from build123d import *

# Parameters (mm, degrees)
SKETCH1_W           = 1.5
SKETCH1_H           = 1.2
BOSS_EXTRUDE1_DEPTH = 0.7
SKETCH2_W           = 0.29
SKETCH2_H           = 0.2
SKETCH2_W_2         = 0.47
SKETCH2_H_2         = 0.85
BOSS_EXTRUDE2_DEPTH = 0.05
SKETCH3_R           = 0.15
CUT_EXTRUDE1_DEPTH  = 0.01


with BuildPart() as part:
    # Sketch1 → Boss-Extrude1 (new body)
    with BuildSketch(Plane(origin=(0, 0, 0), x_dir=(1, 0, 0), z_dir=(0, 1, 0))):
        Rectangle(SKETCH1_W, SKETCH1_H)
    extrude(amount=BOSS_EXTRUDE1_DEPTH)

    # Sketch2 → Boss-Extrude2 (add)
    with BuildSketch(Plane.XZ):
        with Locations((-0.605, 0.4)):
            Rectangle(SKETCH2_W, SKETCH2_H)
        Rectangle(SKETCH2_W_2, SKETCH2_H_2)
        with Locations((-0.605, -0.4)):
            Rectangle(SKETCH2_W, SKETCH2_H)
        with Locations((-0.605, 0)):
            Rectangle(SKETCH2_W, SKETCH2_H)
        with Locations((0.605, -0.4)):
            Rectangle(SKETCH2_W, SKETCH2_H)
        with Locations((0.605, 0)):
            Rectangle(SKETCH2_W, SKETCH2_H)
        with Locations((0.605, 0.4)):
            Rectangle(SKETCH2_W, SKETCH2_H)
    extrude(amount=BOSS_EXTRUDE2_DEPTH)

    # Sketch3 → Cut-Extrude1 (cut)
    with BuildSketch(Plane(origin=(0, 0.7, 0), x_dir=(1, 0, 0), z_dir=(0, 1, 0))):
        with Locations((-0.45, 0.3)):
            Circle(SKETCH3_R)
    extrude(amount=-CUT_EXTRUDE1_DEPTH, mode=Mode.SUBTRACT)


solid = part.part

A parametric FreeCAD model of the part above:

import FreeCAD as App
import Part
import Sketcher

V = App.Vector

doc = App.newDocument("Part")
body = doc.addObject("PartDesign::Body", "Body")

# Sketch on XZ plane
sketch1 = doc.addObject("Sketcher::SketchObject", "Sketch")
body.addObject(sketch1)
sketch1.AttachmentSupport = (doc.XZ_Plane, [""])
sketch1.MapMode = "FlatFace"
sketch1.addGeometry(Part.LineSegment(V(-0.75, -0.6, 0), V(-0.75, 0.6, 0)), False)
sketch1.addGeometry(Part.LineSegment(V(-0.75, 0.6, 0), V(0.75, 0.6, 0)), False)
sketch1.addGeometry(Part.LineSegment(V(0.75, 0.6, 0), V(0.75, -0.6, 0)), False)
sketch1.addGeometry(Part.LineSegment(V(0.75, -0.6, 0), V(-0.75, -0.6, 0)), False)
sketch1.addConstraint(Sketcher.Constraint("Coincident", 0, 2, 1, 1))
sketch1.addConstraint(Sketcher.Constraint("Coincident", 1, 2, 2, 1))
sketch1.addConstraint(Sketcher.Constraint("Coincident", 2, 2, 3, 1))
sketch1.addConstraint(Sketcher.Constraint("Coincident", 3, 2, 0, 1))
sketch1.addConstraint(Sketcher.Constraint("Vertical", 0))
sketch1.addConstraint(Sketcher.Constraint("Horizontal", 1))
sketch1.addConstraint(Sketcher.Constraint("Vertical", 2))
sketch1.addConstraint(Sketcher.Constraint("Horizontal", 3))
sketch1.addConstraint(Sketcher.Constraint("Symmetric", 0, 2, 2, 2, -1, 1))
sketch1.addConstraint(Sketcher.Constraint("DistanceX", 1, 1, 1, 2, 1.5))
sketch1.addConstraint(Sketcher.Constraint("DistanceY", 0, 1, 0, 2, 1.2))
pad1 = doc.addObject("PartDesign::Pad", "Pad")
body.addObject(pad1)
pad1.Profile = sketch1
pad1.Length = 0.7
pad1.Reversed = True

# Sketch on XZ plane
sketch2 = doc.addObject("Sketcher::SketchObject", "Sketch001")
body.addObject(sketch2)
sketch2.AttachmentSupport = (doc.XZ_Plane, [""])
sketch2.MapMode = "FlatFace"
sketch2.addGeometry(Part.LineSegment(V(-0.75, 0.5, 0), V(-0.75, 0.3, 0)), False)
sketch2.addGeometry(Part.LineSegment(V(-0.75, 0.3, 0), V(-0.46, 0.3, 0)), False)
sketch2.addGeometry(Part.LineSegment(V(-0.46, 0.3, 0), V(-0.46, 0.5, 0)), False)
sketch2.addGeometry(Part.LineSegment(V(-0.46, 0.5, 0), V(-0.75, 0.5, 0)), False)
sketch2.addGeometry(Part.LineSegment(V(-0.235, 0.425, 0), V(-0.235, -0.425, 0)), False)
sketch2.addGeometry(Part.LineSegment(V(-0.235, -0.425, 0), V(0.235, -0.425, 0)), False)
sketch2.addGeometry(Part.LineSegment(V(0.235, -0.425, 0), V(0.235, 0.425, 0)), False)
sketch2.addGeometry(Part.LineSegment(V(0.235, 0.425, 0), V(-0.235, 0.425, 0)), False)
sketch2.addGeometry(Part.LineSegment(V(-0.75, -0.3, 0), V(-0.75, -0.5, 0)), False)
sketch2.addGeometry(Part.LineSegment(V(-0.75, -0.5, 0), V(-0.46, -0.5, 0)), False)
sketch2.addGeometry(Part.LineSegment(V(-0.46, -0.5, 0), V(-0.46, -0.3, 0)), False)
sketch2.addGeometry(Part.LineSegment(V(-0.46, -0.3, 0), V(-0.75, -0.3, 0)), False)
sketch2.addGeometry(Part.LineSegment(V(-0.75, 0.1, 0), V(-0.75, -0.1, 0)), False)
sketch2.addGeometry(Part.LineSegment(V(-0.75, -0.1, 0), V(-0.46, -0.1, 0)), False)
sketch2.addGeometry(Part.LineSegment(V(-0.46, -0.1, 0), V(-0.46, 0.1, 0)), False)
sketch2.addGeometry(Part.LineSegment(V(-0.46, 0.1, 0), V(-0.75, 0.1, 0)), False)
sketch2.addGeometry(Part.LineSegment(V(0.46, -0.3, 0), V(0.46, -0.5, 0)), False)
sketch2.addGeometry(Part.LineSegment(V(0.46, -0.5, 0), V(0.75, -0.5, 0)), False)
sketch2.addGeometry(Part.LineSegment(V(0.75, -0.5, 0), V(0.75, -0.3, 0)), False)
sketch2.addGeometry(Part.LineSegment(V(0.75, -0.3, 0), V(0.46, -0.3, 0)), False)
sketch2.addGeometry(Part.LineSegment(V(0.46, 0.1, 0), V(0.46, -0.1, 0)), False)
sketch2.addGeometry(Part.LineSegment(V(0.46, -0.1, 0), V(0.75, -0.1, 0)), False)
sketch2.addGeometry(Part.LineSegment(V(0.75, -0.1, 0), V(0.75, 0.1, 0)), False)
sketch2.addGeometry(Part.LineSegment(V(0.75, 0.1, 0), V(0.46, 0.1, 0)), False)
sketch2.addGeometry(Part.LineSegment(V(0.46, 0.5, 0), V(0.46, 0.3, 0)), False)
sketch2.addGeometry(Part.LineSegment(V(0.46, 0.3, 0), V(0.75, 0.3, 0)), False)
sketch2.addGeometry(Part.LineSegment(V(0.75, 0.3, 0), V(0.75, 0.5, 0)), False)
sketch2.addGeometry(Part.LineSegment(V(0.75, 0.5, 0), V(0.46, 0.5, 0)), False)
sketch2.addConstraint(Sketcher.Constraint("Coincident", 0, 2, 1, 1))
sketch2.addConstraint(Sketcher.Constraint("Coincident", 1, 2, 2, 1))
sketch2.addConstraint(Sketcher.Constraint("Coincident", 2, 2, 3, 1))
sketch2.addConstraint(Sketcher.Constraint("Coincident", 3, 2, 0, 1))
sketch2.addConstraint(Sketcher.Constraint("Coincident", 4, 2, 5, 1))
sketch2.addConstraint(Sketcher.Constraint("Coincident", 5, 2, 6, 1))
sketch2.addConstraint(Sketcher.Constraint("Coincident", 6, 2, 7, 1))
sketch2.addConstraint(Sketcher.Constraint("Coincident", 7, 2, 4, 1))
sketch2.addConstraint(Sketcher.Constraint("Coincident", 8, 2, 9, 1))
sketch2.addConstraint(Sketcher.Constraint("Coincident", 9, 2, 10, 1))
sketch2.addConstraint(Sketcher.Constraint("Coincident", 10, 2, 11, 1))
sketch2.addConstraint(Sketcher.Constraint("Coincident", 11, 2, 8, 1))
sketch2.addConstraint(Sketcher.Constraint("Coincident", 12, 2, 13, 1))
sketch2.addConstraint(Sketcher.Constraint("Coincident", 13, 2, 14, 1))
sketch2.addConstraint(Sketcher.Constraint("Coincident", 14, 2, 15, 1))
sketch2.addConstraint(Sketcher.Constraint("Coincident", 15, 2, 12, 1))
sketch2.addConstraint(Sketcher.Constraint("Coincident", 16, 2, 17, 1))
sketch2.addConstraint(Sketcher.Constraint("Coincident", 17, 2, 18, 1))
sketch2.addConstraint(Sketcher.Constraint("Coincident", 18, 2, 19, 1))
sketch2.addConstraint(Sketcher.Constraint("Coincident", 19, 2, 16, 1))
sketch2.addConstraint(Sketcher.Constraint("Coincident", 20, 2, 21, 1))
sketch2.addConstraint(Sketcher.Constraint("Coincident", 21, 2, 22, 1))
sketch2.addConstraint(Sketcher.Constraint("Coincident", 22, 2, 23, 1))
sketch2.addConstraint(Sketcher.Constraint("Coincident", 23, 2, 20, 1))
sketch2.addConstraint(Sketcher.Constraint("Coincident", 24, 2, 25, 1))
sketch2.addConstraint(Sketcher.Constraint("Coincident", 25, 2, 26, 1))
sketch2.addConstraint(Sketcher.Constraint("Coincident", 26, 2, 27, 1))
sketch2.addConstraint(Sketcher.Constraint("Coincident", 27, 2, 24, 1))
sketch2.addConstraint(Sketcher.Constraint("Vertical", 0))
sketch2.addConstraint(Sketcher.Constraint("Horizontal", 1))
sketch2.addConstraint(Sketcher.Constraint("Vertical", 2))
sketch2.addConstraint(Sketcher.Constraint("Horizontal", 3))
sketch2.addConstraint(Sketcher.Constraint("Vertical", 4))
sketch2.addConstraint(Sketcher.Constraint("Horizontal", 5))
sketch2.addConstraint(Sketcher.Constraint("Vertical", 6))
sketch2.addConstraint(Sketcher.Constraint("Horizontal", 7))
sketch2.addConstraint(Sketcher.Constraint("Vertical", 8))
sketch2.addConstraint(Sketcher.Constraint("Horizontal", 9))
sketch2.addConstraint(Sketcher.Constraint("Vertical", 10))
sketch2.addConstraint(Sketcher.Constraint("Horizontal", 11))
sketch2.addConstraint(Sketcher.Constraint("Vertical", 12))
sketch2.addConstraint(Sketcher.Constraint("Horizontal", 13))
sketch2.addConstraint(Sketcher.Constraint("Vertical", 14))
sketch2.addConstraint(Sketcher.Constraint("Horizontal", 15))
sketch2.addConstraint(Sketcher.Constraint("Vertical", 16))
sketch2.addConstraint(Sketcher.Constraint("Horizontal", 17))
sketch2.addConstraint(Sketcher.Constraint("Vertical", 18))
sketch2.addConstraint(Sketcher.Constraint("Horizontal", 19))
sketch2.addConstraint(Sketcher.Constraint("Vertical", 20))
sketch2.addConstraint(Sketcher.Constraint("Horizontal", 21))
sketch2.addConstraint(Sketcher.Constraint("Vertical", 22))
sketch2.addConstraint(Sketcher.Constraint("Horizontal", 23))
sketch2.addConstraint(Sketcher.Constraint("Vertical", 24))
sketch2.addConstraint(Sketcher.Constraint("Horizontal", 25))
sketch2.addConstraint(Sketcher.Constraint("Vertical", 26))
sketch2.addConstraint(Sketcher.Constraint("Horizontal", 27))
sketch2.addConstraint(Sketcher.Constraint("Symmetric", 4, 2, 6, 2, -1, 1))
sketch2.addConstraint(Sketcher.Constraint("Symmetric", 2, 2, 16, 2, -1, 1))
sketch2.addConstraint(Sketcher.Constraint("Symmetric", 0, 2, 18, 2, -1, 1))
sketch2.addConstraint(Sketcher.Constraint("Symmetric", 14, 2, 20, 2, -1, 1))
sketch2.addConstraint(Sketcher.Constraint("Symmetric", 12, 2, 22, 2, -1, 1))
sketch2.addConstraint(Sketcher.Constraint("Symmetric", 10, 2, 24, 2, -1, 1))
sketch2.addConstraint(Sketcher.Constraint("Symmetric", 8, 2, 26, 2, -1, 1))
sketch2.addConstraint(Sketcher.Constraint("Symmetric", 9, 2, 16, 2, -2))
sketch2.addConstraint(Sketcher.Constraint("Symmetric", 11, 2, 18, 2, -2))
sketch2.addConstraint(Sketcher.Constraint("Horizontal", 13, 2, 20, 2))
sketch2.addConstraint(Sketcher.Constraint("Vertical", 11, 2, 12, 2))
sketch2.addConstraint(Sketcher.Constraint("Vertical", 10, 2, 13, 2))
sketch2.addConstraint(Sketcher.Constraint("Equal", 10, 12))
sketch2.addConstraint(Sketcher.Constraint("DistanceY", 0, 2, 0, 1, 0.2))
sketch2.addConstraint(Sketcher.Constraint("DistanceY", 8, 2, 3, 2, 1.0))
sketch2.addConstraint(Sketcher.Constraint("DistanceX", 1, 1, 1, 2, 0.29))
sketch2.addConstraint(Sketcher.Constraint("DistanceX", 5, 1, 5, 2, 0.47))
sketch2.addConstraint(Sketcher.Constraint("DistanceY", 4, 2, 4, 1, 0.85))
sketch2.addConstraint(Sketcher.Constraint("DistanceX", 0, 2, -1, 1, 0.75))
pad2 = doc.addObject("PartDesign::Pad", "Pad001")
body.addObject(pad2)
pad2.Profile = sketch2
pad2.Length = 0.05

# Sketch on XZ plane
sketch3 = doc.addObject("Sketcher::SketchObject", "Sketch002")
body.addObject(sketch3)
sketch3.AttachmentSupport = (doc.XZ_Plane, [""])
sketch3.MapMode = "FlatFace"
sketch3.AttachmentOffset = App.Placement(V(0, 0, -0.7), App.Rotation())
sketch3.addGeometry(Part.Circle(V(-0.45, -0.3, 0), V(0, 0, 1), 0.15), False)
sketch3.addConstraint(Sketcher.Constraint("Diameter", 0, 0.3))
sketch3.addConstraint(Sketcher.Constraint("DistanceY", 0, 3, -1, 1, 0.3))
sketch3.addConstraint(Sketcher.Constraint("DistanceX", 0, 3, -1, 1, 0.45))
pocket1 = doc.addObject("PartDesign::Pocket", "Pocket")
body.addObject(pocket1)
pocket1.Profile = sketch3
pocket1.Length = 0.01
pocket1.Reversed = True

doc.recompute()
